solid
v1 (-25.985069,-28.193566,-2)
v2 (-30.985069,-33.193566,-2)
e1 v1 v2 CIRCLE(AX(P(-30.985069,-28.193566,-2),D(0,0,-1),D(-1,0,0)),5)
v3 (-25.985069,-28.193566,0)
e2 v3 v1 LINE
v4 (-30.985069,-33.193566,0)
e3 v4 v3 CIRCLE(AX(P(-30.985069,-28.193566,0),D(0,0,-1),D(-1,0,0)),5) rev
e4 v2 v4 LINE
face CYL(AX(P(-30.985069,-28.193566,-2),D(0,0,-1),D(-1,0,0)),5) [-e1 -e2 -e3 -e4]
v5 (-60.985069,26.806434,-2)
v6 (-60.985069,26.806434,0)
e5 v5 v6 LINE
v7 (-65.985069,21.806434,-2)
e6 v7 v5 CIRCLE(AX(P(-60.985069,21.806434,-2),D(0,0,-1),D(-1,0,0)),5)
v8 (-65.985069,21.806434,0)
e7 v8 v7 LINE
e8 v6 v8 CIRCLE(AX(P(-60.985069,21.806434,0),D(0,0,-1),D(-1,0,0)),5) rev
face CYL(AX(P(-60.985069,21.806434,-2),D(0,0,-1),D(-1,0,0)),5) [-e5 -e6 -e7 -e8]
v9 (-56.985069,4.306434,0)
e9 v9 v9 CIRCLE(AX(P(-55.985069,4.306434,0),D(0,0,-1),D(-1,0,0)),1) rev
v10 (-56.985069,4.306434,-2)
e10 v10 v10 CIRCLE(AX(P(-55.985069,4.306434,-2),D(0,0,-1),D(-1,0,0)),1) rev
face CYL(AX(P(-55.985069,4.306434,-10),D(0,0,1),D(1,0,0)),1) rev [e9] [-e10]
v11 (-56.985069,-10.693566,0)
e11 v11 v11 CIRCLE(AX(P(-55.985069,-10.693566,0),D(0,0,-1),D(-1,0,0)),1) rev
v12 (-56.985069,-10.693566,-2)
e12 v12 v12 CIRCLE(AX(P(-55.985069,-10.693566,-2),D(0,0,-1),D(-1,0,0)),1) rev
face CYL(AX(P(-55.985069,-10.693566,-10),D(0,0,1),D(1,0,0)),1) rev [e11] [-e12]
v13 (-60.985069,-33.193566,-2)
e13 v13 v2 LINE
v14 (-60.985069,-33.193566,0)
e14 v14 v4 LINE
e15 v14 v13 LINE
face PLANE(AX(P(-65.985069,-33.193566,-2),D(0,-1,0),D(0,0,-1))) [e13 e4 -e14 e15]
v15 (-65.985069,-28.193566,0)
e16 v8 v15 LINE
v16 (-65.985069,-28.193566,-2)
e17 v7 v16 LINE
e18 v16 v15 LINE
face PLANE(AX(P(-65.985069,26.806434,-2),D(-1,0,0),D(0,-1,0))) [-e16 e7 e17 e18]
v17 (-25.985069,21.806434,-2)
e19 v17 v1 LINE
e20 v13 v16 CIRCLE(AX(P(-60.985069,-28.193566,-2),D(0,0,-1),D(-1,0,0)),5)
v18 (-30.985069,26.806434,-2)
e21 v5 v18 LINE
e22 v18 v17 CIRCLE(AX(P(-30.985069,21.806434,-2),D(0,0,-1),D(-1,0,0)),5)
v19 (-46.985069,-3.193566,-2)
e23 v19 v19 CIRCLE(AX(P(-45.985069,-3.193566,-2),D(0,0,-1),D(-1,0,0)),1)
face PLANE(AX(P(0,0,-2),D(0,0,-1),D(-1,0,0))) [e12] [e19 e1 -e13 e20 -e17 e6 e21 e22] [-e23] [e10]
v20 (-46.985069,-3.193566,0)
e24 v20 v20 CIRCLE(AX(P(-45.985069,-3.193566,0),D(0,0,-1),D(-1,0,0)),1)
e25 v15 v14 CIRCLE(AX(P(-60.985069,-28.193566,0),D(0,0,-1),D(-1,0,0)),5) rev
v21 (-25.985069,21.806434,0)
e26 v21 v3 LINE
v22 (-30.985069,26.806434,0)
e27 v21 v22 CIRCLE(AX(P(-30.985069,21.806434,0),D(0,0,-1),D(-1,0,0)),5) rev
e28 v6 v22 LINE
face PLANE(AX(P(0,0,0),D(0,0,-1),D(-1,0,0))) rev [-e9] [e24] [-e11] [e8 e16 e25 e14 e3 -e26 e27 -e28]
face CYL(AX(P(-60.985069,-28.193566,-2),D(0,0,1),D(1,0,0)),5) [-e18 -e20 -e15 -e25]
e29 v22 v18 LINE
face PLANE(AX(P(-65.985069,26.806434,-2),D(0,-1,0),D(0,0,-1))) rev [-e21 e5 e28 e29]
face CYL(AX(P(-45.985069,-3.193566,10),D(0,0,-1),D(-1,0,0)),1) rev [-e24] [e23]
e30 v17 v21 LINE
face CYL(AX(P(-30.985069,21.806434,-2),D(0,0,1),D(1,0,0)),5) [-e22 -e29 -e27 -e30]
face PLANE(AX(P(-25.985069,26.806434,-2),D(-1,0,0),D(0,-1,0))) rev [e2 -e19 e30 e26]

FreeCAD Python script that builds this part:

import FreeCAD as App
import Part
import Sketcher
Q = App.Units.Quantity


def edges_at(feature, points):
    """Names of the edges that pass closest to the given points."""
    edges = feature.Shape.Edges
    near = lambda p: min(range(len(edges)), key=lambda i: edges[i].distToShape(Part.Vertex(*p))[0])
    return sorted({f"Edge{near(p) + 1}" for p in points})

doc = App.newDocument("Part")
body = doc.addObject("PartDesign::Body", "Body")

# Sketch on XY plane
sketch1 = body.newObject("Sketcher::SketchObject", "Sketch")
sketch1.AttachmentSupport = (doc.getObject("XY_Plane"), [""])
sketch1.MapMode = "FlatFace"
sketch1.addGeometry(Part.LineSegment(App.Vector(-66, 27, 0), App.Vector(-66, -33, 0)), False)
sketch1.addGeometry(Part.LineSegment(App.Vector(-66, -33, 0), App.Vector(-26, -33, 0)), False)
sketch1.addGeometry(Part.LineSegment(App.Vector(-26, -33, 0), App.Vector(-26, 27, 0)), False)
sketch1.addGeometry(Part.LineSegment(App.Vector(-26, 27, 0), App.Vector(-66, 27, 0)), False)
sketch1.addConstraint(Sketcher.Constraint("Coincident", 0, 2, 1, 1))
sketch1.addConstraint(Sketcher.Constraint("Coincident", 1, 2, 2, 1))
sketch1.addConstraint(Sketcher.Constraint("Coincident", 2, 2, 3, 1))
sketch1.addConstraint(Sketcher.Constraint("Coincident", 3, 2, 0, 1))
sketch1.addConstraint(Sketcher.Constraint("Vertical", 0))
sketch1.addConstraint(Sketcher.Constraint("Horizontal", 1))
sketch1.addConstraint(Sketcher.Constraint("Vertical", 2))
sketch1.addConstraint(Sketcher.Constraint("Horizontal", 3))
sketch1.addConstraint(Sketcher.Constraint("DistanceX", 1, 1, 1, 2, Q("40 mm")))
sketch1.addConstraint(Sketcher.Constraint("DistanceY", 0, 2, 0, 1, Q("60 mm")))
sketch1.addConstraint(Sketcher.Constraint("DistanceX", 0, 2, -1, 1, Q("65.985069 mm")))
sketch1.addConstraint(Sketcher.Constraint("DistanceY", 0, 2, -1, 1, Q("33.193566 mm")))
pad1 = body.newObject("PartDesign::Pad", "Pad")
pad1.Profile = sketch1
pad1.Length = 2
pad1.Reversed = True
doc.recompute()

fillet = body.newObject("PartDesign::Fillet", "Fillet")
fillet.Base = (pad1, edges_at(pad1, [
    (-65.985, 26.806, -1),
    (-65.985, -33.194, -1),
    (-25.985, -33.194, -1),
    (-25.985, 26.806, -1),
]))
fillet.Radius = 5

# Sketch on XY plane
sketch2 = body.newObject("Sketcher::SketchObject", "Sketch001")
sketch2.AttachmentSupport = (doc.getObject("XY_Plane"), [""])
sketch2.MapMode = "FlatFace"
sketch2.AttachmentOffset = App.Placement(App.Vector(0, 0, -2), App.Rotation())
sketch2.addGeometry(Part.Circle(App.Vector(-46, -3.2, 0), App.Vector(0, 0, 1), 1), False)
sketch2.addConstraint(Sketcher.Constraint("Diameter", 0, Q("2 mm")))
sketch2.addConstraint(Sketcher.Constraint("DistanceX", 0, 3, -1, 1, Q("45.985069 mm")))
sketch2.addConstraint(Sketcher.Constraint("DistanceY", 0, 3, -1, 1, Q("3.193566 mm")))
pocket1 = body.newObject("PartDesign::Pocket", "Pocket")
pocket1.Profile = sketch2
pocket1.Length = 12
pocket1.Reversed = True

# Sketch on XY plane
sketch3 = body.newObject("Sketcher::SketchObject", "Sketch002")
sketch3.AttachmentSupport = (doc.getObject("XY_Plane"), [""])
sketch3.MapMode = "FlatFace"
sketch3.AttachmentOffset = App.Placement(App.Vector(0, 0, -2), App.Rotation())
sketch3.addGeometry(Part.Circle(App.Vector(-56, 4.3, 0), App.Vector(0, 0, 1), 1), False)
sketch3.addGeometry(Part.Circle(App.Vector(-56, -10.7, 0), App.Vector(0, 0, 1), 1), False)
sketch3.addConstraint(Sketcher.Constraint("Equal", 0, 1))
sketch3.addConstraint(Sketcher.Constraint("Vertical", 0, 3, 1, 3))
sketch3.addConstraint(Sketcher.Constraint("Diameter", 0, Q("2 mm")))
sketch3.addConstraint(Sketcher.Constraint("DistanceY", 1, 3, 0, 3, Q("15 mm")))
sketch3.addConstraint(Sketcher.Constraint("DistanceX", 0, 3, -1, 1, Q("55.985069 mm")))
sketch3.addConstraint(Sketcher.Constraint("DistanceY", -1, 1, 0, 3, Q("4.306434 mm")))
pocket2 = body.newObject("PartDesign::Pocket", "Pocket001")
pocket2.Profile = sketch3
pocket2.Type = "ThroughAll"
pocket2.Midplane = True

doc.recompute()
